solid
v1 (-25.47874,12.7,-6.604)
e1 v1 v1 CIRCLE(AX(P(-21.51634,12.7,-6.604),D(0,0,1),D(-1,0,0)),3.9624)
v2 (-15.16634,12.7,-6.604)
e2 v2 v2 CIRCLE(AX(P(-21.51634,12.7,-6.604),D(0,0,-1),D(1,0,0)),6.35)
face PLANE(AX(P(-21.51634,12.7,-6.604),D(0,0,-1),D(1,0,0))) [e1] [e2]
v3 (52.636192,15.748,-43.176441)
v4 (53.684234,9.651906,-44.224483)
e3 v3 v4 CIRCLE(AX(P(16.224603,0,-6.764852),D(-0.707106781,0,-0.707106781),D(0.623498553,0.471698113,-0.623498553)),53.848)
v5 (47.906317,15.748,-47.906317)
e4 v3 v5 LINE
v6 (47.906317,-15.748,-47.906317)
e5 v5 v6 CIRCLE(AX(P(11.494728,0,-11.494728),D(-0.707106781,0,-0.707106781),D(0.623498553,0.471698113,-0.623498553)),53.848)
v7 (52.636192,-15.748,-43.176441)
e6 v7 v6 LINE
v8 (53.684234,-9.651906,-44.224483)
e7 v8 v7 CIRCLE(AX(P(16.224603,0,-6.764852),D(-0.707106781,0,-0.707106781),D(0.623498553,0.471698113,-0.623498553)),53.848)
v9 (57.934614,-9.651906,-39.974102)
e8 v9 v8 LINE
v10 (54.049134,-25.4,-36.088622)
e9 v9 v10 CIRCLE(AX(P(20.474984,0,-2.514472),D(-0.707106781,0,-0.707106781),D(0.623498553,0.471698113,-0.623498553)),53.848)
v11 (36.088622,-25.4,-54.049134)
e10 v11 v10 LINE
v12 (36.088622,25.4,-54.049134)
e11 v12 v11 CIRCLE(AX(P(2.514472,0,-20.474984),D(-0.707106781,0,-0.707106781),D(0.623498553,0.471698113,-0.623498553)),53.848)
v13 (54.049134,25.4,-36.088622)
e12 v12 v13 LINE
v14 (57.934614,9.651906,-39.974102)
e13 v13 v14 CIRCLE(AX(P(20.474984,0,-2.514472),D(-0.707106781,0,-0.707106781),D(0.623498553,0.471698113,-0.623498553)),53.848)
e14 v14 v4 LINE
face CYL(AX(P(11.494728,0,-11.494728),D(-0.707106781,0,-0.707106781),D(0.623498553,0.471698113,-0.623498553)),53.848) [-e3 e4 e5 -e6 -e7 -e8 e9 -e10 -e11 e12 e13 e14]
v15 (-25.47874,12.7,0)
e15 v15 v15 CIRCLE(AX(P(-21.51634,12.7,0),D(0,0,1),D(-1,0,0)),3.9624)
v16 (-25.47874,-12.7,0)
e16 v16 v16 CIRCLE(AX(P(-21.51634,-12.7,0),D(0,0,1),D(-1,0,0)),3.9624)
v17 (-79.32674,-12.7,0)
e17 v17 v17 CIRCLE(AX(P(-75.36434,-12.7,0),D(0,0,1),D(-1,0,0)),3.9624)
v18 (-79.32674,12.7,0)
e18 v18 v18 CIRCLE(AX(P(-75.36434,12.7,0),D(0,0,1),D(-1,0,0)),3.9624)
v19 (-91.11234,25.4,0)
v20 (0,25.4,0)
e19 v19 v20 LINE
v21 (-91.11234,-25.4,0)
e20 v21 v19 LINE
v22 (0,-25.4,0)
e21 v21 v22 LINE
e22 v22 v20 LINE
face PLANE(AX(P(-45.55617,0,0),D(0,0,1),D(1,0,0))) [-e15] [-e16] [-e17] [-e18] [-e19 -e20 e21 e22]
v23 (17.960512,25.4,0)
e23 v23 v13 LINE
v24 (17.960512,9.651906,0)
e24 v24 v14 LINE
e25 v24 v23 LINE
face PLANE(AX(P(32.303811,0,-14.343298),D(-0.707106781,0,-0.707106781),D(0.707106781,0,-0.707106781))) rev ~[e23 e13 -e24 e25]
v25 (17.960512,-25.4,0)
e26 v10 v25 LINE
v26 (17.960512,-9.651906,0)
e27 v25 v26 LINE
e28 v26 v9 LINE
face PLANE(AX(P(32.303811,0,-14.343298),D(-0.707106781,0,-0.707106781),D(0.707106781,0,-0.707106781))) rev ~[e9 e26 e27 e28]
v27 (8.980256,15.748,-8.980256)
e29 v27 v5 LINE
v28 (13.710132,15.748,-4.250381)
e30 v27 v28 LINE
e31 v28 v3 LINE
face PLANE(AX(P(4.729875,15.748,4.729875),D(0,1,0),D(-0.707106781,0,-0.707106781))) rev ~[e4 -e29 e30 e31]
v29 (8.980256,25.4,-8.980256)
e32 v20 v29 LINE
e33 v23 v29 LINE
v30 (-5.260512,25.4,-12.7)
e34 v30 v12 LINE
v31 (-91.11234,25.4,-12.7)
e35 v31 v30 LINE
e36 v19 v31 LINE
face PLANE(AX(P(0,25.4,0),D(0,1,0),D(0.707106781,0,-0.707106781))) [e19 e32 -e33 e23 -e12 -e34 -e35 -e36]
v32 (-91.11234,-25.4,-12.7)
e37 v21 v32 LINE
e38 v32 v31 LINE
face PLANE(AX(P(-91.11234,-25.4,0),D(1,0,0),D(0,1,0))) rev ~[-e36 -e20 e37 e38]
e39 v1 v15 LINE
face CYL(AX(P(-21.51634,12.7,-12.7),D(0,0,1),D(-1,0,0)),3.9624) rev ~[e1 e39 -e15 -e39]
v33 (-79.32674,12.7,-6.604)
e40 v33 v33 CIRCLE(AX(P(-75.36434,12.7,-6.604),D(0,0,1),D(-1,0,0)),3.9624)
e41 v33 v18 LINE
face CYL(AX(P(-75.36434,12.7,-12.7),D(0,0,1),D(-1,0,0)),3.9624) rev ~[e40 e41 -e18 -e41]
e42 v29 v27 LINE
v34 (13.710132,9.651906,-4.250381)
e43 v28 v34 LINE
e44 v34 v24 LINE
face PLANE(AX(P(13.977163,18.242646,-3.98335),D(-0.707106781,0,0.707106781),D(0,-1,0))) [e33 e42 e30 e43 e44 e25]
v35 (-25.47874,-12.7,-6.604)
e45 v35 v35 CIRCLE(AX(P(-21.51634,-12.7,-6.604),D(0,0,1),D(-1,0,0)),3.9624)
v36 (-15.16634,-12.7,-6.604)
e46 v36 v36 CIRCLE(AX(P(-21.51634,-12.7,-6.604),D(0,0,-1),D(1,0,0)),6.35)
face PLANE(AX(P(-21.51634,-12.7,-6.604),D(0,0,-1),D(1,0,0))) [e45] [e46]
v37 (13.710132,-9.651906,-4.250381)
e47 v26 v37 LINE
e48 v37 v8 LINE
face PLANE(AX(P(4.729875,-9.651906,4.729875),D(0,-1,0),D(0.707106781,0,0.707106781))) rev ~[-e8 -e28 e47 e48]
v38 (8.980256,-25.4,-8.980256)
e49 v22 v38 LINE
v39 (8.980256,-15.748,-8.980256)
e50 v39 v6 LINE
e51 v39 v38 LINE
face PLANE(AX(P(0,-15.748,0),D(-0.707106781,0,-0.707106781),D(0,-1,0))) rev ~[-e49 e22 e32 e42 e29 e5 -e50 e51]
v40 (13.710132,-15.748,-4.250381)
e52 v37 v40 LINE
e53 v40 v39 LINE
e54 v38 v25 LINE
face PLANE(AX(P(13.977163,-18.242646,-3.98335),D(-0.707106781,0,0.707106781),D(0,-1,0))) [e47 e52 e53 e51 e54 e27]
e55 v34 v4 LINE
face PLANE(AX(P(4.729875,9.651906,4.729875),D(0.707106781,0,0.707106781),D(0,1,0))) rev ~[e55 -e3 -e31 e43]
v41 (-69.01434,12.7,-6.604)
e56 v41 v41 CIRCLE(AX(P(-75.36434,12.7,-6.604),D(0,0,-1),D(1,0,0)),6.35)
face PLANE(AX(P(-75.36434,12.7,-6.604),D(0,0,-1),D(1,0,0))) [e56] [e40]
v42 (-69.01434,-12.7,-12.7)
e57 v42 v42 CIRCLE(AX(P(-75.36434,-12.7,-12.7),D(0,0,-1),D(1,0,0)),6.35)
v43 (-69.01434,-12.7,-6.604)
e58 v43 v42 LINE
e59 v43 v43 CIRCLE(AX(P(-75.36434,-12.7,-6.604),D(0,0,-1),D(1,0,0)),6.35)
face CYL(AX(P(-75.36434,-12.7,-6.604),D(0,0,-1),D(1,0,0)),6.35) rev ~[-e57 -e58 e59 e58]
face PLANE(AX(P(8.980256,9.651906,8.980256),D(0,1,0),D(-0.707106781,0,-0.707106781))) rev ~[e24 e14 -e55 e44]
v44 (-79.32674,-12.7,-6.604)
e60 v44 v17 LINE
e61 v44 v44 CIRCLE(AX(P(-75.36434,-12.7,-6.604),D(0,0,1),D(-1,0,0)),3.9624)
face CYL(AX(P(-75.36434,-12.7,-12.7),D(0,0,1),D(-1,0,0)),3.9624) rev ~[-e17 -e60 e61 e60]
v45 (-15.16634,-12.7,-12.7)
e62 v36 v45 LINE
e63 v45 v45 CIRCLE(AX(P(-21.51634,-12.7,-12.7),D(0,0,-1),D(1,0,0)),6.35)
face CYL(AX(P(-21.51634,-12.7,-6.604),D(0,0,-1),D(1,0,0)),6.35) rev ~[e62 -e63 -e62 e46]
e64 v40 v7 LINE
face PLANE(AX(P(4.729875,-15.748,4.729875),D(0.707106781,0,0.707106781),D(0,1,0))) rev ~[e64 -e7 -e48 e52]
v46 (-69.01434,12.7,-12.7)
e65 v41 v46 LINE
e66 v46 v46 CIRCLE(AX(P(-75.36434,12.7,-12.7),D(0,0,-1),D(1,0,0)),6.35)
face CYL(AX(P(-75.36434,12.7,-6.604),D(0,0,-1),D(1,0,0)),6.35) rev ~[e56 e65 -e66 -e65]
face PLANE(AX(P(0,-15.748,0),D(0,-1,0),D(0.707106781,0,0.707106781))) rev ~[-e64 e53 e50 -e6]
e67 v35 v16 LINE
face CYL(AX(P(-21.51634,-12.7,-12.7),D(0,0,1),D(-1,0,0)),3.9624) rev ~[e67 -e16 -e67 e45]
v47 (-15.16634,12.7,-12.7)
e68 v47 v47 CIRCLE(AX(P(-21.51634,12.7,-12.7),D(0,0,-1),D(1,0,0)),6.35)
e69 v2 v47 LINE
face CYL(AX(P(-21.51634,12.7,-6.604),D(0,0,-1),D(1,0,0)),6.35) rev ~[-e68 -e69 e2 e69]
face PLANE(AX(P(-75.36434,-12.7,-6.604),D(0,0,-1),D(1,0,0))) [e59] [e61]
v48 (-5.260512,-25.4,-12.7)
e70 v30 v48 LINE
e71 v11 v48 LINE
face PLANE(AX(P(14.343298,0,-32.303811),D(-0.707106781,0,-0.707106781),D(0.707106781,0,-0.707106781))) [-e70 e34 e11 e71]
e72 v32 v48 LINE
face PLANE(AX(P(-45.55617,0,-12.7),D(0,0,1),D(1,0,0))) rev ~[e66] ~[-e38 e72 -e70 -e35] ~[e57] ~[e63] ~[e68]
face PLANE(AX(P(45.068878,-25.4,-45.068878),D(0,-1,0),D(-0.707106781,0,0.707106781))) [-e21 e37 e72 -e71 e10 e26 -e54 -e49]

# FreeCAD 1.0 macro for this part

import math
import FreeCAD as App
import Part
import Sketcher
from FreeCAD import Vector
Q = App.Units.Quantity


def add_polygon(sketch, points):
    """Adds a closed chain of lines whose ends are joined by coincident constraints."""
    first, n = sketch.GeometryCount, len(points)
    for a, b in zip(points, points[1:] + points[:1]):
        sketch.addGeometry(Part.LineSegment(App.Vector(*a, 0), App.Vector(*b, 0)), False)
    for i in range(n):
        sketch.addConstraint(Sketcher.Constraint("Coincident", first + i, 2, first + (i + 1) % n, 1))

doc = App.newDocument("Part")
body = doc.addObject("PartDesign::Body", "Body")

# Sketch on XY plane
sketch1 = doc.addObject("Sketcher::SketchObject", "Sketch")
body.addObject(sketch1)
sketch1.AttachmentSupport = (doc.XY_Plane, [""])
sketch1.MapMode = "FlatFace"
add_polygon(sketch1, [(-91, 25), (-91, -25), (0, -25), (0, 25)])  # lines 0-3
sketch1.addConstraint(Sketcher.Constraint("Vertical", 0))
sketch1.addConstraint(Sketcher.Constraint("Horizontal", 1))
sketch1.addConstraint(Sketcher.Constraint("Vertical", 2))
sketch1.addConstraint(Sketcher.Constraint("Horizontal", 3))
sketch1.addConstraint(Sketcher.Constraint("Symmetric", 1, 2, 2, 2, -1, 1))
sketch1.addConstraint(Sketcher.Constraint("DistanceY", 0, 2, 0, 1, Q("2 in")))
sketch1.addConstraint(Sketcher.Constraint("DistanceX", 1, 1, 1, 2, Q("3.5871 in")))
pad1 = doc.addObject("PartDesign::Pad", "Pad")
body.addObject(pad1)
pad1.Profile = sketch1
pad1.Length = Q("0.5 in")
pad1.Reversed = True

# Sketch on an angled plane
sketch2 = doc.addObject("Sketcher::SketchObject", "Sketch001")
body.addObject(sketch2)
sketch2.Placement = App.Placement(Vector(0, 0, 0), App.Rotation(Vector(0.707106781, 0, -0.707106781), Vector(0, -0.999999999, 0), Vector(-0.707106781, 0, -0.707106781), "ZXY"))
sketch2.addGeometry(Part.LineSegment(Vector(64, 25, 0), Vector(0, 25, 0)), False)
sketch2.addGeometry(Part.LineSegment(Vector(0, 25, 0), Vector(0, -25, 0)), False)
sketch2.addGeometry(Part.LineSegment(Vector(0, -25, 0), Vector(64, -25, 0)), False)
sketch2.addGeometry(Part.ArcOfCircle(Part.Circle(Vector(16, 0, 0), Vector(0, 0, 1), 54), math.radians(-28), math.radians(28)), False)
sketch2.addConstraint(Sketcher.Constraint("Coincident", 0, 2, 1, 1))
sketch2.addConstraint(Sketcher.Constraint("Coincident", 1, 2, 2, 1))
sketch2.addConstraint(Sketcher.Constraint("Coincident", 2, 2, 3, 1))
sketch2.addConstraint(Sketcher.Constraint("Coincident", 3, 2, 0, 1))
sketch2.addConstraint(Sketcher.Constraint("Horizontal", 0))
sketch2.addConstraint(Sketcher.Constraint("Vertical", 1))
sketch2.addConstraint(Sketcher.Constraint("Horizontal", 2))
sketch2.addConstraint(Sketcher.Constraint("Symmetric", 0, 2, 1, 2, -1, 1))
sketch2.addConstraint(Sketcher.Constraint("PointOnObject", 3, 3, -1))
sketch2.addConstraint(Sketcher.Constraint("DistanceY", 1, 2, 1, 1, Q("2 in")))
sketch2.addConstraint(Sketcher.Constraint("Radius", 3, Q("2.12 in")))
sketch2.addConstraint(Sketcher.Constraint("DistanceX", -1, 1, 3, 3, Q("0.64 in")))
pad2 = doc.addObject("PartDesign::Pad", "Pad001")
body.addObject(pad2)
pad2.Profile = sketch2
pad2.Length = Q("1 in")
pad2.Midplane = True

# Sketch on an angled plane
sketch3 = doc.addObject("Sketcher::SketchObject", "Sketch002")
body.addObject(sketch3)
sketch3.Placement = App.Placement(Vector(0, 0, 0), App.Rotation(Vector(0, -1, 0), Vector(0.707106781, 0, 0.707106781), Vector(-0.707106781, 0, 0.707106781), "ZXY"))
add_polygon(sketch3, [(-16, 7), (-16, 0), (16, 0), (16, 7), (10, 7), (10, 13), (-10, 13), (-10, 7)])  # lines 0-7
sketch3.addConstraint(Sketcher.Constraint("Vertical", 0))
sketch3.addConstraint(Sketcher.Constraint("Horizontal", 1))
sketch3.addConstraint(Sketcher.Constraint("Vertical", 2))
sketch3.addConstraint(Sketcher.Constraint("Horizontal", 3))
sketch3.addConstraint(Sketcher.Constraint("Vertical", 4))
sketch3.addConstraint(Sketcher.Constraint("Horizontal", 5))
sketch3.addConstraint(Sketcher.Constraint("Vertical", 6))
sketch3.addConstraint(Sketcher.Constraint("Horizontal", 7))
sketch3.addConstraint(Sketcher.Constraint("Symmetric", 0, 2, 1, 2, -1, 1))
sketch3.addConstraint(Sketcher.Constraint("Symmetric", 3, 2, 6, 2, -2))
sketch3.addConstraint(Sketcher.Constraint("DistanceX", 1, 1, 1, 2, Q("1.24 in")))
sketch3.addConstraint(Sketcher.Constraint("DistanceY", -1, 1, 4, 2, Q("0.5 in")))
sketch3.addConstraint(Sketcher.Constraint("DistanceX", 3, 2, 3, 1, 6.096094))
sketch3.addConstraint(Sketcher.Constraint("DistanceY", 0, 2, 0, 1, 6.689054))
pocket1 = doc.addObject("PartDesign::Pocket", "Pocket")
body.addObject(pocket1)
pocket1.Profile = sketch3
pocket1.Type = "ThroughAll"

# Sketch on an angled plane
sketch4 = doc.addObject("Sketcher::SketchObject", "Sketch003")
body.addObject(sketch4)
sketch4.Placement = App.Placement(Vector(0, 0, 0), App.Rotation(Vector(0, -1, 0), Vector(0.707106781, 0, 0.707106781), Vector(-0.707106781, 0, 0.707106781), "ZXY"))
add_polygon(sketch4, [(-25, 13), (-25, 0), (-16, 0), (-16, 7), (-10, 7), (-10, 13)])  # lines 0-5
add_polygon(sketch4, [(16, 7), (16, 0), (25, 0), (25, 13), (10, 13), (10, 7)])  # lines 6-11
sketch4.addConstraint(Sketcher.Constraint("Vertical", 0))
sketch4.addConstraint(Sketcher.Constraint("Horizontal", 1))
sketch4.addConstraint(Sketcher.Constraint("Vertical", 2))
sketch4.addConstraint(Sketcher.Constraint("Horizontal", 3))
sketch4.addConstraint(Sketcher.Constraint("Vertical", 4))
sketch4.addConstraint(Sketcher.Constraint("Horizontal", 5))
sketch4.addConstraint(Sketcher.Constraint("Vertical", 6))
sketch4.addConstraint(Sketcher.Constraint("Horizontal", 7))
sketch4.addConstraint(Sketcher.Constraint("Vertical", 8))
sketch4.addConstraint(Sketcher.Constraint("Horizontal", 9))
sketch4.addConstraint(Sketcher.Constraint("Vertical", 10))
sketch4.addConstraint(Sketcher.Constraint("Horizontal", 11))
sketch4.addConstraint(Sketcher.Constraint("Symmetric", 1, 2, 6, 2, -1, 1))
sketch4.addConstraint(Sketcher.Constraint("Symmetric", 0, 2, 7, 2, -2))
sketch4.addConstraint(Sketcher.Constraint("Symmetric", 4, 2, 9, 2, -2))
sketch4.addConstraint(Sketcher.Constraint("Horizontal", 3, 2, 10, 2))
sketch4.addConstraint(Sketcher.Constraint("DistanceY", 0, 2, 0, 1, Q("0.5 in")))
sketch4.addConstraint(Sketcher.Constraint("DistanceX", 0, 2, -1, 1, Q("1 in")))
sketch4.addConstraint(Sketcher.Constraint("DistanceX", 1, 1, 1, 2, Q("0.38 in")))
sketch4.addConstraint(Sketcher.Constraint("DistanceX", 3, 1, 3, 2, 6.096094))
sketch4.addConstraint(Sketcher.Constraint("DistanceY", 2, 1, 2, 2, 6.689054))
pocket2 = doc.addObject("PartDesign::Pocket", "Pocket001")
body.addObject(pocket2)
pocket2.Profile = sketch4
pocket2.Length = Q("0.5 in")

# Sketch on XY plane
sketch5 = doc.addObject("Sketcher::SketchObject", "Sketch004")
body.addObject(sketch5)
sketch5.AttachmentSupport = (doc.XY_Plane, [""])
sketch5.MapMode = "FlatFace"
sketch5.AttachmentOffset = App.Placement(Vector(0, 0, -0.5 * 25.4), App.Rotation())
sketch5.addGeometry(Part.Circle(Vector(-75.4, -12.7, 0), Vector(0, 0, 1), 4), False)
sketch5.addGeometry(Part.Circle(Vector(-75.4, 12.7, 0), Vector(0, 0, 1), 4), False)
sketch5.addGeometry(Part.Circle(Vector(-21.5, -12.7, 0), Vector(0, 0, 1), 4), False)
sketch5.addGeometry(Part.Circle(Vector(-21.5, 12.7, 0), Vector(0, 0, 1), 4), False)
sketch5.addConstraint(Sketcher.Constraint("Equal", 0, 1))
sketch5.addConstraint(Sketcher.Constraint("Equal", 1, 2))
sketch5.addConstraint(Sketcher.Constraint("Equal", 2, 3))
sketch5.addConstraint(Sketcher.Constraint("Symmetric", 0, 3, 1, 3, -1))
sketch5.addConstraint(Sketcher.Constraint("Symmetric", 2, 3, 3, 3, -1))
sketch5.addConstraint(Sketcher.Constraint("Horizontal", 0, 3, 2, 3))
sketch5.addConstraint(Sketcher.Constraint("Diameter", 0, Q("0.312 in")))
sketch5.addConstraint(Sketcher.Constraint("DistanceY", 0, 3, 1, 3, Q("1 in")))
sketch5.addConstraint(Sketcher.Constraint("DistanceX", 0, 3, 2, 3, Q("2.12 in")))
sketch5.addConstraint(Sketcher.Constraint("DistanceX", 0, 3, -1, 1, Q("2.9671 in")))
doc.recompute()
hole = doc.addObject("PartDesign::Hole", "Hole")
body.addObject(hole)
hole.Profile = sketch5
hole.ThreadType = "None"
hole.Diameter = Q("0.312 in")
hole.DepthType = "ThroughAll"
hole.HoleCutType = "Counterbore"
hole.HoleCutDiameter = Q("0.5 in")
hole.HoleCutDepth = Q("0.24 in")
hole.Reversed = True

doc.recompute()
